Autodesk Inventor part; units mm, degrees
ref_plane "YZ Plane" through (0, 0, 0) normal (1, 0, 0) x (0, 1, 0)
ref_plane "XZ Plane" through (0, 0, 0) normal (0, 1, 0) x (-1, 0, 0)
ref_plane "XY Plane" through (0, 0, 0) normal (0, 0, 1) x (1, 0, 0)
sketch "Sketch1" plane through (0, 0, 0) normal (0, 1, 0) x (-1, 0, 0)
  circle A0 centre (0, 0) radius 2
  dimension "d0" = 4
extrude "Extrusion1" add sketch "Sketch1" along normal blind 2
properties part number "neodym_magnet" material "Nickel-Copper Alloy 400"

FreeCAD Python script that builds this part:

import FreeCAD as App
import Part
import Sketcher

V = App.Vector

doc = App.newDocument("Part")
params = doc.addObject("Spreadsheet::Sheet", "Params")
for row, (alias, value) in enumerate([
    ("sketch1_diameter", "4 mm"),
    ("pad1_length", "2 mm"),
], start=1):
    params.set(f"A{row}", alias)
    params.set(f"B{row}", "=" + value)
    params.setAlias(f"B{row}", alias)

body = doc.addObject("PartDesign::Body", "Body")

# Sketch on XZ plane
sketch1 = body.newObject("Sketcher::SketchObject", "Sketch")
sketch1.AttachmentSupport = (doc.getObject("XZ_Plane"), [""])
sketch1.MapMode = "FlatFace"
sketch1.addGeometry(Part.Circle(V(0, 0, 0), V(0, 0, 1), 2), False)
sketch1.addConstraint(Sketcher.Constraint("Coincident", 0, 3, -1, 1))
sketch1.addConstraint(Sketcher.Constraint("Diameter", 0, 4.0))
sketch1.setExpression("Constraints[1]", "Params.sketch1_diameter")
pad1 = body.newObject("PartDesign::Pad", "Pad")
pad1.Profile = sketch1
pad1.setExpression("Length", "Params.pad1_length")
pad1.Reversed = True

doc.recompute()
